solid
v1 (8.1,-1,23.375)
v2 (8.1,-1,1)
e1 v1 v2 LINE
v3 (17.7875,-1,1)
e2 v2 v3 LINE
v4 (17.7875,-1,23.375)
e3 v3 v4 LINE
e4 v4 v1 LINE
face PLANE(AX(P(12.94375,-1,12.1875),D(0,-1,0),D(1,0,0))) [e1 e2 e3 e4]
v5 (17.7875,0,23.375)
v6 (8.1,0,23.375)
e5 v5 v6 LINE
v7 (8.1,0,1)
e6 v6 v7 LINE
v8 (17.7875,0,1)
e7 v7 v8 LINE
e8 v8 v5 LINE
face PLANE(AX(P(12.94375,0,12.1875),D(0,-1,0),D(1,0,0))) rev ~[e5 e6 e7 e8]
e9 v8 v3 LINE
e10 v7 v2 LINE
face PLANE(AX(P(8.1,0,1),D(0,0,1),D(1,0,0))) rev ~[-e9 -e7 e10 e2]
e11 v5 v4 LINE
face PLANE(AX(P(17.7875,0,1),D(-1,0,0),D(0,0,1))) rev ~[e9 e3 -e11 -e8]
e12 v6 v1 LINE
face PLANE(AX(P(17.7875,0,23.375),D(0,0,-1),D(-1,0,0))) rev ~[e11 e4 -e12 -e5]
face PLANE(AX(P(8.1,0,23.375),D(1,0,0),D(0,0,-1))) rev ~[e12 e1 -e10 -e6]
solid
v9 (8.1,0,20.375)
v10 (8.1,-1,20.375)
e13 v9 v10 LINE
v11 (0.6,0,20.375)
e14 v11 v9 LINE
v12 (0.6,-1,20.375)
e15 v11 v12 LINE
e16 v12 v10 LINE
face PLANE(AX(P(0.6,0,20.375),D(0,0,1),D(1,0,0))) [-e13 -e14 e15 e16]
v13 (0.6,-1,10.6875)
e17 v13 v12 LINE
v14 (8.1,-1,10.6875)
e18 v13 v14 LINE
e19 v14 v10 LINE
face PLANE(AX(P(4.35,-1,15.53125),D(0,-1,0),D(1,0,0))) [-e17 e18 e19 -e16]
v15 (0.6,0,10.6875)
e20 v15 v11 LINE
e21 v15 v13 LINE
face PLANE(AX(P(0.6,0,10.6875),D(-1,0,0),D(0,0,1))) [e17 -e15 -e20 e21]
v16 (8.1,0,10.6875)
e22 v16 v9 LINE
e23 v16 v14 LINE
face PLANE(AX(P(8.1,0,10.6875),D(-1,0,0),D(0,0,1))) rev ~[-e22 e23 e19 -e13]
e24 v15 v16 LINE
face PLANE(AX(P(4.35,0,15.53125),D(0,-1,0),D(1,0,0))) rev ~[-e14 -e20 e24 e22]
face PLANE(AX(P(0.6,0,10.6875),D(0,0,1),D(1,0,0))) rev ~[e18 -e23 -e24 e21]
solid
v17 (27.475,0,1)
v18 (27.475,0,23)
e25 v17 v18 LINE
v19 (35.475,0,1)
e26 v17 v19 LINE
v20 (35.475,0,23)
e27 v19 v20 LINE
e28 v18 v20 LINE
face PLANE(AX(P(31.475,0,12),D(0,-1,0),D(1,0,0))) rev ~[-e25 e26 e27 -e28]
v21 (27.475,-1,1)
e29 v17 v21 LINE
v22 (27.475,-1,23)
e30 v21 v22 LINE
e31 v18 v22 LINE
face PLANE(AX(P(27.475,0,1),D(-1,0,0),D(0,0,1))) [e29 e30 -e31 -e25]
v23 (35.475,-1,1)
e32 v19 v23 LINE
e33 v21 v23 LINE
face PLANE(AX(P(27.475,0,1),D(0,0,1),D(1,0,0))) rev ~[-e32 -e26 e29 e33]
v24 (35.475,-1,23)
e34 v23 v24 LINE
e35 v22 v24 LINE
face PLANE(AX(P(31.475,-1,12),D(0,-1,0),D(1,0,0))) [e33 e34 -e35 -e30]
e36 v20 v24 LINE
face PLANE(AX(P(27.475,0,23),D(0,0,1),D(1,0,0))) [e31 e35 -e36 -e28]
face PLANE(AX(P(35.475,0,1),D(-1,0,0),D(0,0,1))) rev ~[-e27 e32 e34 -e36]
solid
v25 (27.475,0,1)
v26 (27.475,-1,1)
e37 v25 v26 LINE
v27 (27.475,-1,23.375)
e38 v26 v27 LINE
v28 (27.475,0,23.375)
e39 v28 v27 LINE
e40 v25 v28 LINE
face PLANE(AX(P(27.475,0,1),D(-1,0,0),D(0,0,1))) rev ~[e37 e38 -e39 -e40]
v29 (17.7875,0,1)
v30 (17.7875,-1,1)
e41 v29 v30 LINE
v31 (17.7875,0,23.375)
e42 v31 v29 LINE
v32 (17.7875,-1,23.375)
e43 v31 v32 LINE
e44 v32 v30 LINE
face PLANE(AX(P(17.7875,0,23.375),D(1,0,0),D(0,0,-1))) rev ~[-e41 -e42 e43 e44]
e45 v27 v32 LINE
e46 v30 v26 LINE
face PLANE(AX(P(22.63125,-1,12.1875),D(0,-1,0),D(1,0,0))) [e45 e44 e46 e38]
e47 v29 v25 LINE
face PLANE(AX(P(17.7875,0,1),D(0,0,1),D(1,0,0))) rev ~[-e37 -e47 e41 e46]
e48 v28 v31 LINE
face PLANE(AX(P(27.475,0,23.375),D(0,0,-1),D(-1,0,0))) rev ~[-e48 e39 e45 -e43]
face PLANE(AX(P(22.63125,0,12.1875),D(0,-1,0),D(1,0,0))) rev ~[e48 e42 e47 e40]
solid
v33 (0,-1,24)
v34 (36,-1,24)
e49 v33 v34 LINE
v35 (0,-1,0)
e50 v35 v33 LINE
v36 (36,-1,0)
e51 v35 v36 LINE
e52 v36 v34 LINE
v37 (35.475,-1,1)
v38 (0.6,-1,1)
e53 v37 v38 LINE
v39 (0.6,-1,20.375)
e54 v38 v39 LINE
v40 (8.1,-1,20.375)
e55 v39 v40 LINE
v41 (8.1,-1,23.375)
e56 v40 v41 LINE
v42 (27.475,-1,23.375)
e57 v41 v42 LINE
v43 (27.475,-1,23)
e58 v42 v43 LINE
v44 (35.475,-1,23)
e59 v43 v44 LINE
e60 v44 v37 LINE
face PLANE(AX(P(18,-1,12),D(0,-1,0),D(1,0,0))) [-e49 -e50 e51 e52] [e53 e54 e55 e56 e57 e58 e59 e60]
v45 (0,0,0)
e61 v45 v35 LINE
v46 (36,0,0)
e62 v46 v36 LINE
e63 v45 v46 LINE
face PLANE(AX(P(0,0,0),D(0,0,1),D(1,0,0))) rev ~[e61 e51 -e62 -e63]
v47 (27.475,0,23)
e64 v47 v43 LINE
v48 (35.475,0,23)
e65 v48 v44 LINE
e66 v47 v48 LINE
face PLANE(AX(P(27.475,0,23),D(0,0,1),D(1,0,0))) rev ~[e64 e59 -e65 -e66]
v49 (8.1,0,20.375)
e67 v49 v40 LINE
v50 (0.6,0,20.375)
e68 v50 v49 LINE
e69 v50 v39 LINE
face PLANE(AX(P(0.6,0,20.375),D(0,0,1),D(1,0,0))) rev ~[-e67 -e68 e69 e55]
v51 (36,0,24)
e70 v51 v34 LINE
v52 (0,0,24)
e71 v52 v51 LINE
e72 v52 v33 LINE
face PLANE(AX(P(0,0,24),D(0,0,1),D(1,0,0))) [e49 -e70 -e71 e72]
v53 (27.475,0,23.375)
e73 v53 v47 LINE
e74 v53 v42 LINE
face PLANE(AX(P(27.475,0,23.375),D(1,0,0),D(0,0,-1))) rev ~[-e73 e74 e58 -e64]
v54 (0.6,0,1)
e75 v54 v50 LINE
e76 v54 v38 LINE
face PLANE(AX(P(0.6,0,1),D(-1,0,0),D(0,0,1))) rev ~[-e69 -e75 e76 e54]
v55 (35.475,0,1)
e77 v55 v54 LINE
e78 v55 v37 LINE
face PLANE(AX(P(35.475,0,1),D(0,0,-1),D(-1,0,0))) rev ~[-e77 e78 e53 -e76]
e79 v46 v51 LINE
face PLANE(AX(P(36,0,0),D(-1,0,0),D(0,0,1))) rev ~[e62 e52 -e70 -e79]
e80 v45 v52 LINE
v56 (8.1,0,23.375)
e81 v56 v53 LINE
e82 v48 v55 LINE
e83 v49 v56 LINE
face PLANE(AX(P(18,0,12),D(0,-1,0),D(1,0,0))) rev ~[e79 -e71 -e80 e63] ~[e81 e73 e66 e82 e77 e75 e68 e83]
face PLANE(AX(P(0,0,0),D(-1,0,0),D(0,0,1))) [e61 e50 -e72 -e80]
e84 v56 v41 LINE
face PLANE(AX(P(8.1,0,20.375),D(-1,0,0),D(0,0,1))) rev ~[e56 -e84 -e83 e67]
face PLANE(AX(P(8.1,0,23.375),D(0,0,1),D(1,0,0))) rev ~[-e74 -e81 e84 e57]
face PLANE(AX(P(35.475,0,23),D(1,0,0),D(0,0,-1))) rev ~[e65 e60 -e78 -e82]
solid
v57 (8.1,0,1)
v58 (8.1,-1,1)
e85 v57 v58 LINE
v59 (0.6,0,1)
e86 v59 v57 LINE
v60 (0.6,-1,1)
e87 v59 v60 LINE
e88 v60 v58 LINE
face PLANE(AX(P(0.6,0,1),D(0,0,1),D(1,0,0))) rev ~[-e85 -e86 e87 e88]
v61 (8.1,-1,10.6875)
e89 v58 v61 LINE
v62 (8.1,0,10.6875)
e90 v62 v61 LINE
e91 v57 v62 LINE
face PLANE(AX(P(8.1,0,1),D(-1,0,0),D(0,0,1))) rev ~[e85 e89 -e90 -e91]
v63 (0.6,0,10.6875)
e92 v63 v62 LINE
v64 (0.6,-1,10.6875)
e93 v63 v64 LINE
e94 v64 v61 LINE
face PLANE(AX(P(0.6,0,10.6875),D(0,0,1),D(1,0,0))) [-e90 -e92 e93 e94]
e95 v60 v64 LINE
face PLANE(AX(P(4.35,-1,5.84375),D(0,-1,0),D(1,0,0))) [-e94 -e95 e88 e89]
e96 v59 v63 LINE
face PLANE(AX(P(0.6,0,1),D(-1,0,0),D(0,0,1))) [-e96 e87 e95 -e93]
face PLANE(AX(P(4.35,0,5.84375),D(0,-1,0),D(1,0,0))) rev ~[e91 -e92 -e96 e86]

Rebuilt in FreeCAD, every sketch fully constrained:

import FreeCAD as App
import Part
import Sketcher

V = App.Vector

doc = App.newDocument("Part")
body = doc.addObject("PartDesign::Body", "Body")

# Sketch on XZ plane
sketch1 = body.newObject("Sketcher::SketchObject", "Sketch")
sketch1.AttachmentSupport = (doc.getObject("XZ_Plane"), [""])
sketch1.MapMode = "FlatFace"
sketch1.addGeometry(Part.LineSegment(V(0, 24, 0), V(0, 0, 0)), False)
sketch1.addGeometry(Part.LineSegment(V(0, 0, 0), V(36, 0, 0)), False)
sketch1.addGeometry(Part.LineSegment(V(36, 0, 0), V(36, 24, 0)), False)
sketch1.addGeometry(Part.LineSegment(V(36, 24, 0), V(0, 24, 0)), False)
sketch1.addGeometry(Part.LineSegment(V(35.48, 1, 0), V(0.6, 1, 0)), False)
sketch1.addGeometry(Part.LineSegment(V(0.6, 1, 0), V(0.6, 20.38, 0)), False)
sketch1.addGeometry(Part.LineSegment(V(0.6, 20.38, 0), V(8.1, 20.38, 0)), False)
sketch1.addGeometry(Part.LineSegment(V(8.1, 20.38, 0), V(8.1, 23.38, 0)), False)
sketch1.addGeometry(Part.LineSegment(V(8.1, 23.38, 0), V(27.48, 23.38, 0)), False)
sketch1.addGeometry(Part.LineSegment(V(27.48, 23.38, 0), V(27.48, 23, 0)), False)
sketch1.addGeometry(Part.LineSegment(V(27.48, 23, 0), V(35.48, 23, 0)), False)
sketch1.addGeometry(Part.LineSegment(V(35.48, 23, 0), V(35.48, 1, 0)), False)
sketch1.addConstraint(Sketcher.Constraint("Coincident", 0, 2, 1, 1))
sketch1.addConstraint(Sketcher.Constraint("Coincident", 1, 2, 2, 1))
sketch1.addConstraint(Sketcher.Constraint("Coincident", 2, 2, 3, 1))
sketch1.addConstraint(Sketcher.Constraint("Coincident", 3, 2, 0, 1))
sketch1.addConstraint(Sketcher.Constraint("Coincident", 4, 2, 5, 1))
sketch1.addConstraint(Sketcher.Constraint("Coincident", 5, 2, 6, 1))
sketch1.addConstraint(Sketcher.Constraint("Coincident", 6, 2, 7, 1))
sketch1.addConstraint(Sketcher.Constraint("Coincident", 7, 2, 8, 1))
sketch1.addConstraint(Sketcher.Constraint("Coincident", 8, 2, 9, 1))
sketch1.addConstraint(Sketcher.Constraint("Coincident", 9, 2, 10, 1))
sketch1.addConstraint(Sketcher.Constraint("Coincident", 10, 2, 11, 1))
sketch1.addConstraint(Sketcher.Constraint("Coincident", 11, 2, 4, 1))
sketch1.addConstraint(Sketcher.Constraint("Vertical", 0))
sketch1.addConstraint(Sketcher.Constraint("Horizontal", 1))
sketch1.addConstraint(Sketcher.Constraint("Vertical", 2))
sketch1.addConstraint(Sketcher.Constraint("Horizontal", 3))
sketch1.addConstraint(Sketcher.Constraint("Horizontal", 4))
sketch1.addConstraint(Sketcher.Constraint("Vertical", 5))
sketch1.addConstraint(Sketcher.Constraint("Horizontal", 6))
sketch1.addConstraint(Sketcher.Constraint("Vertical", 7))
sketch1.addConstraint(Sketcher.Constraint("Horizontal", 8))
sketch1.addConstraint(Sketcher.Constraint("Vertical", 9))
sketch1.addConstraint(Sketcher.Constraint("Horizontal", 10))
sketch1.addConstraint(Sketcher.Constraint("Vertical", 11))
sketch1.addConstraint(Sketcher.Constraint("Coincident", 0, 2, -1, 1))
sketch1.addConstraint(Sketcher.Constraint("Equal", 8, 5))
sketch1.addConstraint(Sketcher.Constraint("DistanceX", 1, 1, 1, 2, 36.0))
sketch1.addConstraint(Sketcher.Constraint("DistanceX", 10, 1, 10, 2, 8.0))
sketch1.addConstraint(Sketcher.Constraint("DistanceY", 0, 2, 0, 1, 24.0))
sketch1.addConstraint(Sketcher.Constraint("DistanceY", 7, 1, 7, 2, 3.0))
sketch1.addConstraint(Sketcher.Constraint("DistanceY", 11, 2, 11, 1, 22.0))
sketch1.addConstraint(Sketcher.Constraint("DistanceX", 6, 1, 6, 2, 7.5))
sketch1.addConstraint(Sketcher.Constraint("DistanceY", -1, 1, 4, 2, 1.0))
sketch1.addConstraint(Sketcher.Constraint("DistanceX", -1, 1, 4, 2, 0.6))
sketch1.addConstraint(Sketcher.Constraint("DistanceX", 4, 2, 4, 1, 34.875))
pad1 = body.newObject("PartDesign::Pad", "Pad")
pad1.Profile = sketch1
pad1.Length = 1
body2 = doc.addObject("PartDesign::Body", "Body001")

# Sketch on XZ plane
sketch2 = body2.newObject("Sketcher::SketchObject", "Sketch001")
sketch2.AttachmentSupport = (doc.getObject("XZ_Plane001"), [""])
sketch2.MapMode = "FlatFace"
sketch2.addGeometry(Part.LineSegment(V(8, 1, 0), V(18, 1, 0)), False)
sketch2.addGeometry(Part.LineSegment(V(18, 1, 0), V(18, 23, 0)), False)
sketch2.addGeometry(Part.LineSegment(V(18, 23, 0), V(8, 23, 0)), False)
sketch2.addGeometry(Part.LineSegment(V(8, 23, 0), V(8, 1, 0)), False)
sketch2.addConstraint(Sketcher.Constraint("Coincident", 0, 2, 1, 1))
sketch2.addConstraint(Sketcher.Constraint("Coincident", 1, 2, 2, 1))
sketch2.addConstraint(Sketcher.Constraint("Coincident", 2, 2, 3, 1))
sketch2.addConstraint(Sketcher.Constraint("Coincident", 3, 2, 0, 1))
sketch2.addConstraint(Sketcher.Constraint("Horizontal", 0))
sketch2.addConstraint(Sketcher.Constraint("Vertical", 1))
sketch2.addConstraint(Sketcher.Constraint("Horizontal", 2))
sketch2.addConstraint(Sketcher.Constraint("Vertical", 3))
sketch2.addConstraint(Sketcher.Constraint("DistanceY", -1, 1, 0, 2, 1.0))
sketch2.addConstraint(Sketcher.Constraint("DistanceX", -1, 1, 2, 2, 8.1))
sketch2.addConstraint(Sketcher.Constraint("DistanceY", 1, 1, 1, 2, 22.375))
sketch2.addConstraint(Sketcher.Constraint("DistanceX", 0, 1, 0, 2, 9.6875))
pad2 = body2.newObject("PartDesign::Pad", "Pad001")
pad2.Profile = sketch2
pad2.Length = 1
body3 = doc.addObject("PartDesign::Body", "Body002")

# Sketch on XZ plane
sketch3 = body3.newObject("Sketcher::SketchObject", "Sketch002")
sketch3.AttachmentSupport = (doc.getObject("XZ_Plane002"), [""])
sketch3.MapMode = "FlatFace"
sketch3.addGeometry(Part.LineSegment(V(1, 20, 0), V(1, 11, 0)), False)
sketch3.addGeometry(Part.LineSegment(V(1, 11, 0), V(8, 11, 0)), False)
sketch3.addGeometry(Part.LineSegment(V(8, 11, 0), V(8, 20, 0)), False)
sketch3.addGeometry(Part.LineSegment(V(8, 20, 0), V(1, 20, 0)), False)
sketch3.addConstraint(Sketcher.Constraint("Coincident", 0, 2, 1, 1))
sketch3.addConstraint(Sketcher.Constraint("Coincident", 1, 2, 2, 1))
sketch3.addConstraint(Sketcher.Constraint("Coincident", 2, 2, 3, 1))
sketch3.addConstraint(Sketcher.Constraint("Coincident", 3, 2, 0, 1))
sketch3.addConstraint(Sketcher.Constraint("Vertical", 0))
sketch3.addConstraint(Sketcher.Constraint("Horizontal", 1))
sketch3.addConstraint(Sketcher.Constraint("Vertical", 2))
sketch3.addConstraint(Sketcher.Constraint("Horizontal", 3))
sketch3.addConstraint(Sketcher.Constraint("DistanceX", 1, 1, 1, 2, 7.5))
sketch3.addConstraint(Sketcher.Constraint("DistanceX", -1, 1, 0, 2, 0.6))
sketch3.addConstraint(Sketcher.Constraint("DistanceY", 0, 2, 0, 1, 9.6875))
sketch3.addConstraint(Sketcher.Constraint("DistanceY", -1, 1, 2, 2, 20.375))
pad3 = body3.newObject("PartDesign::Pad", "Pad002")
pad3.Profile = sketch3
pad3.Length = 1
body4 = doc.addObject("PartDesign::Body", "Body003")

# Sketch on XZ plane
sketch4 = body4.newObject("Sketcher::SketchObject", "Sketch003")
sketch4.AttachmentSupport = (doc.getObject("XZ_Plane003"), [""])
sketch4.MapMode = "FlatFace"
sketch4.addGeometry(Part.LineSegment(V(1, 11, 0), V(1, 1, 0)), False)
sketch4.addGeometry(Part.LineSegment(V(1, 1, 0), V(8, 1, 0)), False)
sketch4.addGeometry(Part.LineSegment(V(8, 1, 0), V(8, 11, 0)), False)
sketch4.addGeometry(Part.LineSegment(V(8, 11, 0), V(1, 11, 0)), False)
sketch4.addConstraint(Sketcher.Constraint("Coincident", 0, 2, 1, 1))
sketch4.addConstraint(Sketcher.Constraint("Coincident", 1, 2, 2, 1))
sketch4.addConstraint(Sketcher.Constraint("Coincident", 2, 2, 3, 1))
sketch4.addConstraint(Sketcher.Constraint("Coincident", 3, 2, 0, 1))
sketch4.addConstraint(Sketcher.Constraint("Vertical", 0))
sketch4.addConstraint(Sketcher.Constraint("Horizontal", 1))
sketch4.addConstraint(Sketcher.Constraint("Vertical", 2))
sketch4.addConstraint(Sketcher.Constraint("Horizontal", 3))
sketch4.addConstraint(Sketcher.Constraint("DistanceX", 1, 1, 1, 2, 7.5))
sketch4.addConstraint(Sketcher.Constraint("DistanceY", -1, 1, 0, 2, 1.0))
sketch4.addConstraint(Sketcher.Constraint("DistanceX", -1, 1, 0, 2, 0.6))
sketch4.addConstraint(Sketcher.Constraint("DistanceY", 0, 2, 0, 1, 9.6875))
pad4 = body4.newObject("PartDesign::Pad", "Pad003")
pad4.Profile = sketch4
pad4.Length = 1
body5 = doc.addObject("PartDesign::Body", "Body004")

# Sketch on XZ plane
sketch5 = body5.newObject("Sketcher::SketchObject", "Sketch004")
sketch5.AttachmentSupport = (doc.getObject("XZ_Plane004"), [""])
sketch5.MapMode = "FlatFace"
sketch5.addGeometry(Part.LineSegment(V(18, 23, 0), V(18, 1, 0)), False)
sketch5.addGeometry(Part.LineSegment(V(18, 1, 0), V(27, 1, 0)), False)
sketch5.addGeometry(Part.LineSegment(V(27, 1, 0), V(27, 23, 0)), False)
sketch5.addGeometry(Part.LineSegment(V(27, 23, 0), V(18, 23, 0)), False)
sketch5.addConstraint(Sketcher.Constraint("Coincident", 0, 2, 1, 1))
sketch5.addConstraint(Sketcher.Constraint("Coincident", 1, 2, 2, 1))
sketch5.addConstraint(Sketcher.Constraint("Coincident", 2, 2, 3, 1))
sketch5.addConstraint(Sketcher.Constraint("Coincident", 3, 2, 0, 1))
sketch5.addConstraint(Sketcher.Constraint("Vertical", 0))
sketch5.addConstraint(Sketcher.Constraint("Horizontal", 1))
sketch5.addConstraint(Sketcher.Constraint("Vertical", 2))
sketch5.addConstraint(Sketcher.Constraint("Horizontal", 3))
sketch5.addConstraint(Sketcher.Constraint("DistanceY", -1, 1, 0, 2, 1.0))
sketch5.addConstraint(Sketcher.Constraint("DistanceY", 0, 2, 0, 1, 22.375))
sketch5.addConstraint(Sketcher.Constraint("DistanceX", 1, 1, 1, 2, 9.6875))
sketch5.addConstraint(Sketcher.Constraint("DistanceX", -1, 1, 1, 2, 27.475))
pad5 = body5.newObject("PartDesign::Pad", "Pad004")
pad5.Profile = sketch5
pad5.Length = 1
body6 = doc.addObject("PartDesign::Body", "Body005")

# Sketch on XZ plane
sketch6 = body6.newObject("Sketcher::SketchObject", "Sketch005")
sketch6.AttachmentSupport = (doc.getObject("XZ_Plane005"), [""])
sketch6.MapMode = "FlatFace"
sketch6.addGeometry(Part.LineSegment(V(27, 23, 0), V(27, 1, 0)), False)
sketch6.addGeometry(Part.LineSegment(V(27, 1, 0), V(35, 1, 0)), False)
sketch6.addGeometry(Part.LineSegment(V(35, 1, 0), V(35, 23, 0)), False)
sketch6.addGeometry(Part.LineSegment(V(35, 23, 0), V(27, 23, 0)), False)
sketch6.addConstraint(Sketcher.Constraint("Coincident", 0, 2, 1, 1))
sketch6.addConstraint(Sketcher.Constraint("Coincident", 1, 2, 2, 1))
sketch6.addConstraint(Sketcher.Constraint("Coincident", 2, 2, 3, 1))
sketch6.addConstraint(Sketcher.Constraint("Coincident", 3, 2, 0, 1))
sketch6.addConstraint(Sketcher.Constraint("Vertical", 0))
sketch6.addConstraint(Sketcher.Constraint("Horizontal", 1))
sketch6.addConstraint(Sketcher.Constraint("Vertical", 2))
sketch6.addConstraint(Sketcher.Constraint("Horizontal", 3))
sketch6.addConstraint(Sketcher.Constraint("DistanceX", 1, 1, 1, 2, 8.0))
sketch6.addConstraint(Sketcher.Constraint("DistanceY", 0, 2, 0, 1, 22.0))
sketch6.addConstraint(Sketcher.Constraint("DistanceY", -1, 1, 0, 2, 1.0))
sketch6.addConstraint(Sketcher.Constraint("DistanceX", -1, 1, 0, 2, 27.475))
pad6 = body6.newObject("PartDesign::Pad", "Pad005")
pad6.Profile = sketch6
pad6.Length = 1

doc.recompute()
